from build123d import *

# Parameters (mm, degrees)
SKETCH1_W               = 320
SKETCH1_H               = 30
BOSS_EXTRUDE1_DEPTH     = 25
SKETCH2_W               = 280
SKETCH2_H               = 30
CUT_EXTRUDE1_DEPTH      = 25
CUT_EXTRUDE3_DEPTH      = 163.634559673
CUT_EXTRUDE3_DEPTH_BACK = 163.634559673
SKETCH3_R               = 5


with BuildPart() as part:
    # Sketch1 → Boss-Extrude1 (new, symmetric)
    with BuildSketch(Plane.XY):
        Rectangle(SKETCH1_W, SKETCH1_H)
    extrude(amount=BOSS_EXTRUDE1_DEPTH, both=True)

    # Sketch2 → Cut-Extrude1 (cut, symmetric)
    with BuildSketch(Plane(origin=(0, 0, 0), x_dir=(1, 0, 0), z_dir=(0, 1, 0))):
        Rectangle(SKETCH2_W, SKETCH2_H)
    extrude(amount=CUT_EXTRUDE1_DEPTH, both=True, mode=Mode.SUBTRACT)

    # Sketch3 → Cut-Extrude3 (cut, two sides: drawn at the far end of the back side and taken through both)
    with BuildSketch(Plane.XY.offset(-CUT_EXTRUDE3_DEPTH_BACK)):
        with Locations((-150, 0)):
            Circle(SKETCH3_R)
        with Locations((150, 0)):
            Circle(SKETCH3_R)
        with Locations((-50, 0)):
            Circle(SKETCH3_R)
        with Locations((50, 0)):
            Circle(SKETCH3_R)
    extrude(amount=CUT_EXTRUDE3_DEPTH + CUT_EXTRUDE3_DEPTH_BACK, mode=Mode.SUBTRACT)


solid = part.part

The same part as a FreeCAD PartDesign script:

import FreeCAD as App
import Part
import Sketcher
from FreeCAD import Vector

doc = App.newDocument("Part")
body = doc.addObject("PartDesign::Body", "Body")

# Sketch on XY plane
sketch1 = body.newObject("Sketcher::SketchObject", "Sketch")
sketch1.AttachmentSupport = (doc.getObject("XY_Plane"), [""])
sketch1.MapMode = "FlatFace"
sketch1.addGeometry([
    Part.LineSegment(Vector(-160, 15, 0), Vector(-160, -15, 0)),
    Part.LineSegment(Vector(-160, -15, 0), Vector(160, -15, 0)),
    Part.LineSegment(Vector(160, -15, 0), Vector(160, 15, 0)),
    Part.LineSegment(Vector(160, 15, 0), Vector(-160, 15, 0)),
], False)
sketch1.addConstraint([
    Sketcher.Constraint("Coincident", 0, 2, 1, 1),
    Sketcher.Constraint("Coincident", 1, 2, 2, 1),
    Sketcher.Constraint("Coincident", 2, 2, 3, 1),
    Sketcher.Constraint("Coincident", 3, 2, 0, 1),
    Sketcher.Constraint("Vertical", 0),
    Sketcher.Constraint("Horizontal", 1),
    Sketcher.Constraint("Vertical", 2),
    Sketcher.Constraint("Horizontal", 3),
    Sketcher.Constraint("Symmetric", 0, 2, 2, 2, -1, 1),
    Sketcher.Constraint("DistanceX", 1, 1, 1, 2, 320.0),
    Sketcher.Constraint("DistanceY", 0, 2, 0, 1, 30.0),
])
pad1 = body.newObject("PartDesign::Pad", "Pad")
pad1.Profile = sketch1
pad1.Length = 50
pad1.Midplane = True

# Sketch on XZ plane
sketch2 = body.newObject("Sketcher::SketchObject", "Sketch001")
sketch2.AttachmentSupport = (doc.getObject("XZ_Plane"), [""])
sketch2.MapMode = "FlatFace"
sketch2.addGeometry([
    Part.LineSegment(Vector(-140, -15, 0), Vector(-140, 15, 0)),
    Part.LineSegment(Vector(-140, 15, 0), Vector(140, 15, 0)),
    Part.LineSegment(Vector(140, 15, 0), Vector(140, -15, 0)),
    Part.LineSegment(Vector(140, -15, 0), Vector(-140, -15, 0)),
], False)
sketch2.addConstraint([
    Sketcher.Constraint("Coincident", 0, 2, 1, 1),
    Sketcher.Constraint("Coincident", 1, 2, 2, 1),
    Sketcher.Constraint("Coincident", 2, 2, 3, 1),
    Sketcher.Constraint("Coincident", 3, 2, 0, 1),
    Sketcher.Constraint("Vertical", 0),
    Sketcher.Constraint("Horizontal", 1),
    Sketcher.Constraint("Vertical", 2),
    Sketcher.Constraint("Horizontal", 3),
    Sketcher.Constraint("Symmetric", 0, 2, 2, 2, -1, 1),
    Sketcher.Constraint("DistanceX", 1, 1, 1, 2, 280.0),
    Sketcher.Constraint("DistanceY", 0, 1, 0, 2, 30.0),
])
pocket1 = body.newObject("PartDesign::Pocket", "Pocket")
pocket1.Profile = sketch2
pocket1.Length = 50
pocket1.Midplane = True

# Sketch on XY plane
sketch3 = body.newObject("Sketcher::SketchObject", "Sketch002")
sketch3.AttachmentSupport = (doc.getObject("XY_Plane"), [""])
sketch3.MapMode = "FlatFace"
sketch3.addGeometry([
    Part.Circle(Vector(-150, 0, 0), Vector(0, 0, 1), 5),
    Part.Circle(Vector(150, 0, 0), Vector(0, 0, 1), 5),
    Part.Circle(Vector(-50, 0, 0), Vector(0, 0, 1), 5),
    Part.Circle(Vector(50, 0, 0), Vector(0, 0, 1), 5),
], False)
sketch3.addConstraint([
    Sketcher.Constraint("Equal", 0, 1),
    Sketcher.Constraint("Equal", 1, 2),
    Sketcher.Constraint("Equal", 2, 3),
    Sketcher.Constraint("Symmetric", 0, 3, 1, 3, -1, 1),
    Sketcher.Constraint("Symmetric", 2, 3, 3, 3, -1, 1),
    Sketcher.Constraint("PointOnObject", 0, 3, -1),
    Sketcher.Constraint("PointOnObject", 2, 3, -1),
    Sketcher.Constraint("Diameter", 0, 10.0),
    Sketcher.Constraint("DistanceX", 0, 3, -1, 1, 150.0),
    Sketcher.Constraint("DistanceX", 2, 3, -1, 1, 50.0),
])
pocket2 = body.newObject("PartDesign::Pocket", "Pocket001")
pocket2.Profile = sketch3
pocket2.Type = "ThroughAll"
pocket2.Midplane = True

doc.recompute()
